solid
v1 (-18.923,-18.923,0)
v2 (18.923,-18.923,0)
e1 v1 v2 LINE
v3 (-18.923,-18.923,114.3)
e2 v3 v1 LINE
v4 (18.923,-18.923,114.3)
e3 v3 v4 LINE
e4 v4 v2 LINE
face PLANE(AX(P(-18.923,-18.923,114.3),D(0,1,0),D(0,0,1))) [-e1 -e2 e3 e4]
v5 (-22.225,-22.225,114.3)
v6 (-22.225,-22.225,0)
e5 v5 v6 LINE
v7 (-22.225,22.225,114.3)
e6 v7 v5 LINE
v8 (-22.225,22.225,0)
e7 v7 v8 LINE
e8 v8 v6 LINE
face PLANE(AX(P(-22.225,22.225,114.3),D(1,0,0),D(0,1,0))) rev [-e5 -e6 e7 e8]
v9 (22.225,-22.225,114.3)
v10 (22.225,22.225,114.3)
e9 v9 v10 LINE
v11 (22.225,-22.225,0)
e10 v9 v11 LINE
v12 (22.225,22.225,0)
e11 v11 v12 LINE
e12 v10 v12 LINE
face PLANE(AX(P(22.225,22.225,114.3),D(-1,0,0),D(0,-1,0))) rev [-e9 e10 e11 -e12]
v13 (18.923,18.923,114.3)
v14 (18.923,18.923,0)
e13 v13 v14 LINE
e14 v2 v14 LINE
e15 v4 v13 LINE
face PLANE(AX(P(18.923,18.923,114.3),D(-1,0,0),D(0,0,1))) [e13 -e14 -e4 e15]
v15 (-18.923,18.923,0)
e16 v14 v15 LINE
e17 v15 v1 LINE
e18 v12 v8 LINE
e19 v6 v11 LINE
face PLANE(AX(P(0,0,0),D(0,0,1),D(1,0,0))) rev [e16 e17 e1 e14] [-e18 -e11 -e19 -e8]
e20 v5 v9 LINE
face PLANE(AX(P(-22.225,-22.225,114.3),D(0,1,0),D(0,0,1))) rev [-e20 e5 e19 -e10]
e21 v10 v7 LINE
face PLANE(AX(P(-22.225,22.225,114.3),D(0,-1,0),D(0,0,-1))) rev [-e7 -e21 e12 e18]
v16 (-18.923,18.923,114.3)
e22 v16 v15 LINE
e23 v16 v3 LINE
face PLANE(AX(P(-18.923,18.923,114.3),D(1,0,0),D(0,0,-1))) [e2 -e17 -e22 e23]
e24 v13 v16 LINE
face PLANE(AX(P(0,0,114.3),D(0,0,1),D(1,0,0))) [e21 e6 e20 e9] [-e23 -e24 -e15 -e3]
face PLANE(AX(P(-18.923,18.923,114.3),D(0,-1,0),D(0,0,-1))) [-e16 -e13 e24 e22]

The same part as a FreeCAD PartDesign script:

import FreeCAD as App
import Part
import Sketcher

V = App.Vector
Q = App.Units.Quantity


def add_polygon(sketch, points):
    """Adds a closed chain of lines whose ends are joined by coincident constraints."""
    first, n = sketch.GeometryCount, len(points)
    for a, b in zip(points, points[1:] + points[:1]):
        sketch.addGeometry(Part.LineSegment(App.Vector(*a, 0), App.Vector(*b, 0)), False)
    for i in range(n):
        sketch.addConstraint(Sketcher.Constraint("Coincident", first + i, 2, first + (i + 1) % n, 1))

doc = App.newDocument("Part")
body = doc.addObject("PartDesign::Body", "Body")

# Sketch on XY plane
sketch1 = doc.addObject("Sketcher::SketchObject", "Sketch")
body.addObject(sketch1)
sketch1.AttachmentSupport = (doc.XY_Plane, [""])
sketch1.MapMode = "FlatFace"
add_polygon(sketch1, [(-22, 22), (-22, -22), (22, -22), (22, 22)])  # lines 0-3
add_polygon(sketch1, [(19, -19), (-19, -19), (-19, 19), (19, 19)])  # lines 4-7
sketch1.addConstraint([
    Sketcher.Constraint("Vertical", 0),
    Sketcher.Constraint("Horizontal", 1),
    Sketcher.Constraint("Vertical", 2),
    Sketcher.Constraint("Horizontal", 3),
    Sketcher.Constraint("Horizontal", 4),
    Sketcher.Constraint("Vertical", 5),
    Sketcher.Constraint("Horizontal", 6),
    Sketcher.Constraint("Vertical", 7),
    Sketcher.Constraint("Symmetric", 0, 2, 2, 2, -1, 1),
    Sketcher.Constraint("Symmetric", 4, 2, 6, 2, -1, 1),
    Sketcher.Constraint("Equal", 3, 0),
    Sketcher.Constraint("Equal", 6, 5),
    Sketcher.Constraint("DistanceX", 1, 1, 1, 2, Q("1.75 in")),
    Sketcher.Constraint("DistanceX", 4, 2, 4, 1, Q("1.49 in")),
])
pad1 = doc.addObject("PartDesign::Pad", "Pad")
body.addObject(pad1)
pad1.Profile = sketch1
pad1.Length = Q("4.5 in")

doc.recompute()
